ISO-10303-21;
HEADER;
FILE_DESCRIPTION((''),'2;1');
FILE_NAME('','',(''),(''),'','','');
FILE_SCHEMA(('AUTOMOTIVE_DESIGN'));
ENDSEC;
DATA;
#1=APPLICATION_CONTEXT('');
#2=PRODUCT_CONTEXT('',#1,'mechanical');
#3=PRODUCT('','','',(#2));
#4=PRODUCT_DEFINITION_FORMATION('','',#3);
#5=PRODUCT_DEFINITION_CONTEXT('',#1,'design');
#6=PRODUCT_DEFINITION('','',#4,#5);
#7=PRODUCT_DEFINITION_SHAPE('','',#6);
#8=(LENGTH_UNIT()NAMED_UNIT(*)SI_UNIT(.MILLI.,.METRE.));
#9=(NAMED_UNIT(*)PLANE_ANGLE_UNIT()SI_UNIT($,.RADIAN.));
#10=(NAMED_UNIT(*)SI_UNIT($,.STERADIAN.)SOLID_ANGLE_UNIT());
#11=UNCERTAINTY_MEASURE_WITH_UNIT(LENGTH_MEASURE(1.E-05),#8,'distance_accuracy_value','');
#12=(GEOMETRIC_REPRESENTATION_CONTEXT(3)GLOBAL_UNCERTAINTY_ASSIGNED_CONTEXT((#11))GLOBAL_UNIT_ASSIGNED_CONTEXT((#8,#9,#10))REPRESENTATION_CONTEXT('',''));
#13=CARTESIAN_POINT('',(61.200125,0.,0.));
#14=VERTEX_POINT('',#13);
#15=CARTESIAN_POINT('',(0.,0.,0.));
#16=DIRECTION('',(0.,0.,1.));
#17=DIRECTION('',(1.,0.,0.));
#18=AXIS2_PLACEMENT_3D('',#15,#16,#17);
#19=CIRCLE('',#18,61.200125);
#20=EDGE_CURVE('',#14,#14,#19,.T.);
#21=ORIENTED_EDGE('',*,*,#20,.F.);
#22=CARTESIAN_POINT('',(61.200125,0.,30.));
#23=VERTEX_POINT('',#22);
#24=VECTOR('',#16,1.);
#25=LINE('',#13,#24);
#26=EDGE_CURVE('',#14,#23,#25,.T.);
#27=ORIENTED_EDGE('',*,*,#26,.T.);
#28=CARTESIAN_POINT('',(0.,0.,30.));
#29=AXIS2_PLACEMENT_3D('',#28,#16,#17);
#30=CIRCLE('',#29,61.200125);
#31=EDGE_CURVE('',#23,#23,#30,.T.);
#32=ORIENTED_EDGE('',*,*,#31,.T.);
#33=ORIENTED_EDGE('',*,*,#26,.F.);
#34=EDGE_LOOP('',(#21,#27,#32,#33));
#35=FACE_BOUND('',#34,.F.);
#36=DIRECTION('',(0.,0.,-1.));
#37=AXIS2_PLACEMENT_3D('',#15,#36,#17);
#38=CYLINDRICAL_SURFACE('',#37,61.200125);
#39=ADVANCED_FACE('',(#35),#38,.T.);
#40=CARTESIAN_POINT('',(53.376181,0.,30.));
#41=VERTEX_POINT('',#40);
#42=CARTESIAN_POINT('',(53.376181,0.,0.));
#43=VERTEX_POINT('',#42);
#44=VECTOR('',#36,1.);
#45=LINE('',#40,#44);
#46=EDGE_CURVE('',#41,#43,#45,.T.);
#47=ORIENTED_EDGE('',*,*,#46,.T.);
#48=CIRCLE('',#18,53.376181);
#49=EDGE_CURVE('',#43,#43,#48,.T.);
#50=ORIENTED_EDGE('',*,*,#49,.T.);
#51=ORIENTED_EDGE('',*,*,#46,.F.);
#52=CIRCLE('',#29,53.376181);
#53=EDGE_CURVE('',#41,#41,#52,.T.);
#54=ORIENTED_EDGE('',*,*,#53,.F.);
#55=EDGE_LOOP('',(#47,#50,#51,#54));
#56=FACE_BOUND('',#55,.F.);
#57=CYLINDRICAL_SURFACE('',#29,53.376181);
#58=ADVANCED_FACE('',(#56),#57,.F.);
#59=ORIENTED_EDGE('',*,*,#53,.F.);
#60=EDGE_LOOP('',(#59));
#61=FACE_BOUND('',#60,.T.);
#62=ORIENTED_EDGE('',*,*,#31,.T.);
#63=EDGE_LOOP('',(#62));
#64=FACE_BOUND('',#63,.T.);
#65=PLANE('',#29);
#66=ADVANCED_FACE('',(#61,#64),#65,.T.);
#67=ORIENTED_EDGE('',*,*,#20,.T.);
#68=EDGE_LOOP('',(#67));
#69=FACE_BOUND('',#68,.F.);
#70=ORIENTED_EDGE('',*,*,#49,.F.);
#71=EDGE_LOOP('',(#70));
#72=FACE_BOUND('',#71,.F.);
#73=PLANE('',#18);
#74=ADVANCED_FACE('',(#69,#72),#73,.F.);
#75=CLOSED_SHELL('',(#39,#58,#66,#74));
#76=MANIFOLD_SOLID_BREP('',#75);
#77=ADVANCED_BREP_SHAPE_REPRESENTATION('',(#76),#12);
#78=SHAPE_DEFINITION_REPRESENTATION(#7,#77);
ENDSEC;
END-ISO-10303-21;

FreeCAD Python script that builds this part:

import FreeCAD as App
import Part
import Sketcher

V = App.Vector
Q = App.Units.Quantity

doc = App.newDocument("Part")
body = doc.addObject("PartDesign::Body", "Body")

sketch1 = body.newObject("Sketcher::SketchObject", "Sketch")
sketch1.AttachmentSupport = (doc.getObject("XY_Plane"), [""])
sketch1.MapMode = "FlatFace"
sketch1.addGeometry(Part.Circle(V(0, 0, 0), V(0, 0, 1), 61), False)
sketch1.addConstraint([
    Sketcher.Constraint("Coincident", 0, 3, -1, 1),
    Sketcher.Constraint("Diameter", 0, Q("122.40025 mm")),
])
pad1 = body.newObject("PartDesign::Pad", "Pad")
pad1.Profile = sketch1
pad1.Length = 30

sketch2 = body.newObject("Sketcher::SketchObject", "Sketch001")
sketch2.AttachmentSupport = (doc.getObject("XY_Plane"), [""])
sketch2.MapMode = "FlatFace"
sketch2.AttachmentOffset = App.Placement(V(0, 0, 30), App.Rotation())
sketch2.addGeometry(Part.Circle(V(0, 0, 0), V(0, 0, 1), 53), False)
sketch2.addConstraint([
    Sketcher.Constraint("Coincident", 0, 3, -1, 1),
    Sketcher.Constraint("Diameter", 0, Q("106.752362 mm")),
])
pocket1 = body.newObject("PartDesign::Pocket", "Pocket")
pocket1.Profile = sketch2
pocket1.Length = 45.533195

doc.recompute()
